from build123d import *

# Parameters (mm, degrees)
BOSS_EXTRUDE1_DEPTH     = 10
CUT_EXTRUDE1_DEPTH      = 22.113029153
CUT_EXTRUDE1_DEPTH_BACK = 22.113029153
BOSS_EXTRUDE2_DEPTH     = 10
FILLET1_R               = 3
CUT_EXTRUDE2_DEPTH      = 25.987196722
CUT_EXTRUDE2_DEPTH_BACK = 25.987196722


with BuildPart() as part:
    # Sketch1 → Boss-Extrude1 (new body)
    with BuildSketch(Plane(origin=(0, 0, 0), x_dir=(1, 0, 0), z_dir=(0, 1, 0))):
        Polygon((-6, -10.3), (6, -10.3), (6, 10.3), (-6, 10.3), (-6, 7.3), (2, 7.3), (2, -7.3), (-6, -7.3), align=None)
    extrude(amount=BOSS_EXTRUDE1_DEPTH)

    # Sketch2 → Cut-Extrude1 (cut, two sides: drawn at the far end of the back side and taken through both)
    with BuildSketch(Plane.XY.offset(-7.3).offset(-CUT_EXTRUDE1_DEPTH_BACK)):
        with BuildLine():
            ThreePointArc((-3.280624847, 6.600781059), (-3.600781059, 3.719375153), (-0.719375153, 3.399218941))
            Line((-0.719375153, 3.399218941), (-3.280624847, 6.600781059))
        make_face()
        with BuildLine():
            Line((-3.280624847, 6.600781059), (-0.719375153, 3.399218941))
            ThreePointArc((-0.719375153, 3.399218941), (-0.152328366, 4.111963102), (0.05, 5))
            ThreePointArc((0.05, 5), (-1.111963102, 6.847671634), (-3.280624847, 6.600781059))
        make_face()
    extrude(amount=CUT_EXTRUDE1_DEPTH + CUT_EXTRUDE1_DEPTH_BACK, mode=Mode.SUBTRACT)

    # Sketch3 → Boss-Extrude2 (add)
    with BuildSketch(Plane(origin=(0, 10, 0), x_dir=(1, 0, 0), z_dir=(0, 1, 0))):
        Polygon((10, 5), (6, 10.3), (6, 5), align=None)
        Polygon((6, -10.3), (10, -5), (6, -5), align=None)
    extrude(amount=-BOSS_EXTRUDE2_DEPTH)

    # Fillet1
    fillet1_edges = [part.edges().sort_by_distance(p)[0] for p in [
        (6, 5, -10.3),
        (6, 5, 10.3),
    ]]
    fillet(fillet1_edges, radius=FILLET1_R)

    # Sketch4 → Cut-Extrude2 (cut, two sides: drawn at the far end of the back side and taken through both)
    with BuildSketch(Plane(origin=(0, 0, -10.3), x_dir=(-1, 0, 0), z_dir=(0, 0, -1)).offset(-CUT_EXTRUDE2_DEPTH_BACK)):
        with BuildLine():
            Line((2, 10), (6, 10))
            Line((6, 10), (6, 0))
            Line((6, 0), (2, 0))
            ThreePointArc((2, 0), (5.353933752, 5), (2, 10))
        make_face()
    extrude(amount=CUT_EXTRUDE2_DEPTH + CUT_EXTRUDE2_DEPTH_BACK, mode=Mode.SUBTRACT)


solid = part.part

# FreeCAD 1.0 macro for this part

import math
import FreeCAD as App
import Part
import Sketcher


def edges_at(feature, points):
    """Names of the edges that pass closest to the given points."""
    edges = feature.Shape.Edges
    near = lambda p: min(range(len(edges)), key=lambda i: edges[i].distToShape(Part.Vertex(*p))[0])
    return sorted({f"Edge{near(p) + 1}" for p in points})

doc = App.newDocument("Part")
body = doc.addObject("PartDesign::Body", "Body")

sketch1 = doc.addObject("Sketcher::SketchObject", "Sketch")
body.addObject(sketch1)
sketch1.AttachmentSupport = (doc.XZ_Plane, [""])
sketch1.MapMode = "FlatFace"
sketch1.addGeometry([
    Part.LineSegment(App.Vector(-6, 10.3, 0), App.Vector(6, 10.3, 0)),
    Part.LineSegment(App.Vector(6, 10.3, 0), App.Vector(6, -10.3, 0)),
    Part.LineSegment(App.Vector(6, -10.3, 0), App.Vector(-6, -10.3, 0)),
    Part.LineSegment(App.Vector(-6, -10.3, 0), App.Vector(-6, -7.3, 0)),
    Part.LineSegment(App.Vector(-6, -7.3, 0), App.Vector(2, -7.3, 0)),
    Part.LineSegment(App.Vector(2, -7.3, 0), App.Vector(2, 7.3, 0)),
    Part.LineSegment(App.Vector(2, 7.3, 0), App.Vector(-6, 7.3, 0)),
    Part.LineSegment(App.Vector(-6, 7.3, 0), App.Vector(-6, 10.3, 0)),
], False)
sketch1.addConstraint([
    Sketcher.Constraint("Coincident", 0, 2, 1, 1),
    Sketcher.Constraint("Coincident", 1, 2, 2, 1),
    Sketcher.Constraint("Coincident", 2, 2, 3, 1),
    Sketcher.Constraint("Coincident", 3, 2, 4, 1),
    Sketcher.Constraint("Coincident", 4, 2, 5, 1),
    Sketcher.Constraint("Coincident", 5, 2, 6, 1),
    Sketcher.Constraint("Coincident", 6, 2, 7, 1),
    Sketcher.Constraint("Coincident", 7, 2, 0, 1),
    Sketcher.Constraint("Horizontal", 0),
    Sketcher.Constraint("Vertical", 1),
    Sketcher.Constraint("Horizontal", 2),
    Sketcher.Constraint("Vertical", 3),
    Sketcher.Constraint("Horizontal", 4),
    Sketcher.Constraint("Vertical", 5),
    Sketcher.Constraint("Horizontal", 6),
    Sketcher.Constraint("Vertical", 7),
    Sketcher.Constraint("Symmetric", 0, 2, 2, 2, -1, 1),
    Sketcher.Constraint("Symmetric", 3, 2, 6, 2, -1),
    Sketcher.Constraint("DistanceX", 0, 1, 0, 2, 12.0),
    Sketcher.Constraint("DistanceX", 4, 1, 4, 2, 8.0),
    Sketcher.Constraint("DistanceY", 3, 1, 3, 2, 3.0),
    Sketcher.Constraint("DistanceY", 1, 2, 1, 1, 20.6),
])
pad1 = doc.addObject("PartDesign::Pad", "Pad")
body.addObject(pad1)
pad1.Profile = sketch1
pad1.Length = 10
pad1.Reversed = True

sketch2 = doc.addObject("Sketcher::SketchObject", "Sketch001")
body.addObject(sketch2)
sketch2.AttachmentSupport = (doc.XY_Plane, [""])
sketch2.MapMode = "FlatFace"
sketch2.AttachmentOffset = App.Placement(App.Vector(0, 0, -7.3), App.Rotation())
sketch2.addGeometry([
    Part.ArcOfCircle(Part.Circle(App.Vector(-2, 5, 0), App.Vector(0, 0, 1), 2), math.radians(129), math.radians(309)),
    Part.ArcOfCircle(Part.Circle(App.Vector(-2, 5, 0), App.Vector(0, 0, 1), 2), math.radians(-51), math.radians(0)),
    Part.ArcOfCircle(Part.Circle(App.Vector(-2, 5, 0), App.Vector(0, 0, 1), 2), math.radians(0), math.radians(129)),
], False)
sketch2.addConstraint([
    Sketcher.Constraint("Tangent", 0, 2, 1, 1),
    Sketcher.Constraint("Tangent", 1, 2, 2, 1),
    Sketcher.Constraint("Tangent", 2, 2, 0, 1),
    Sketcher.Constraint("Horizontal", 2, 3, 1, 2),
    Sketcher.Constraint("Radius", 0, 2.05),
    Sketcher.Constraint("DistanceX", 0, 3, -1, 1, 2.0),
    Sketcher.Constraint("DistanceY", -1, 1, 0, 3, 5.0),
    Sketcher.Constraint("DistanceY", -1, 1, 0, 2, 3.399219),
    Sketcher.Constraint("DistanceY", -1, 1, 2, 2, 6.600781),
])
pocket1 = doc.addObject("PartDesign::Pocket", "Pocket")
body.addObject(pocket1)
pocket1.Profile = sketch2
pocket1.Type = "ThroughAll"
pocket1.Midplane = True

sketch3 = doc.addObject("Sketcher::SketchObject", "Sketch002")
body.addObject(sketch3)
sketch3.AttachmentSupport = (doc.XZ_Plane, [""])
sketch3.MapMode = "FlatFace"
sketch3.AttachmentOffset = App.Placement(App.Vector(0, 0, -10), App.Rotation())
sketch3.addGeometry([
    Part.LineSegment(App.Vector(10, -5, 0), App.Vector(6, -10.3, 0)),
    Part.LineSegment(App.Vector(6, -10.3, 0), App.Vector(6, -5, 0)),
    Part.LineSegment(App.Vector(6, -5, 0), App.Vector(10, -5, 0)),
    Part.LineSegment(App.Vector(6, 10.3, 0), App.Vector(10, 5, 0)),
    Part.LineSegment(App.Vector(10, 5, 0), App.Vector(6, 5, 0)),
    Part.LineSegment(App.Vector(6, 5, 0), App.Vector(6, 10.3, 0)),
], False)
sketch3.addConstraint([
    Sketcher.Constraint("Coincident", 0, 2, 1, 1),
    Sketcher.Constraint("Coincident", 1, 2, 2, 1),
    Sketcher.Constraint("Coincident", 2, 2, 0, 1),
    Sketcher.Constraint("Coincident", 3, 2, 4, 1),
    Sketcher.Constraint("Coincident", 4, 2, 5, 1),
    Sketcher.Constraint("Coincident", 5, 2, 3, 1),
    Sketcher.Constraint("Vertical", 1),
    Sketcher.Constraint("Horizontal", 2),
    Sketcher.Constraint("Horizontal", 4),
    Sketcher.Constraint("Vertical", 5),
    Sketcher.Constraint("Symmetric", 2, 2, 3, 2, -1),
    Sketcher.Constraint("Symmetric", 0, 2, 5, 2, -1),
    Sketcher.Constraint("DistanceX", 2, 1, 2, 2, 4.0),
    Sketcher.Constraint("DistanceY", 1, 1, 1, 2, 5.3),
    Sketcher.Constraint("DistanceX", -1, 1, 0, 2, 6.0),
    Sketcher.Constraint("DistanceY", 1, 2, -1, 1, 5.0),
])
pad2 = doc.addObject("PartDesign::Pad", "Pad001")
body.addObject(pad2)
pad2.Profile = sketch3
pad2.Length = 10
doc.recompute()

fillet = doc.addObject("PartDesign::Fillet", "Fillet")
body.addObject(fillet)
fillet.Base = (pad2, edges_at(pad2, [(6, 5, -10.3), (6, 5, 10.3)]))
fillet.Radius = 3

sketch4 = doc.addObject("Sketcher::SketchObject", "Sketch003")
body.addObject(sketch4)
sketch4.AttachmentSupport = (doc.XY_Plane, [""])
sketch4.MapMode = "FlatFace"
sketch4.AttachmentOffset = App.Placement(App.Vector(0, 0, -10.3), App.Rotation())
sketch4.addGeometry([
    Part.LineSegment(App.Vector(-6, 10, 0), App.Vector(-2, 10, 0)),
    Part.ArcOfCircle(Part.Circle(App.Vector(0.1, 5, 0), App.Vector(0, 0, 1), 5.4), math.radians(112), math.radians(248)),
    Part.LineSegment(App.Vector(-2, 0, 0), App.Vector(-6, 0, 0)),
    Part.LineSegment(App.Vector(-6, 0, 0), App.Vector(-6, 10, 0)),
], False)
sketch4.addConstraint([
    Sketcher.Constraint("Coincident", 0, 2, 1, 1),
    Sketcher.Constraint("Coincident", 1, 2, 2, 1),
    Sketcher.Constraint("Coincident", 2, 2, 3, 1),
    Sketcher.Constraint("Coincident", 3, 2, 0, 1),
    Sketcher.Constraint("Horizontal", 0),
    Sketcher.Constraint("Horizontal", 2),
    Sketcher.Constraint("Vertical", 3),
    Sketcher.Constraint("PointOnObject", 1, 2, -1),
    Sketcher.Constraint("Vertical", 0, 2, 1, 2),
    Sketcher.Constraint("DistanceX", 0, 1, 0, 2, 4.0),
    Sketcher.Constraint("DistanceY", 3, 1, 3, 2, 10.0),
    Sketcher.Constraint("DistanceX", 0, 2, -1, 1, 2.0),
    Sketcher.Constraint("DistanceX", -1, 1, 1, 3, 0.05),
])
pocket2 = doc.addObject("PartDesign::Pocket", "Pocket001")
body.addObject(pocket2)
pocket2.Profile = sketch4
pocket2.Type = "ThroughAll"
pocket2.Midplane = True

doc.recompute()
